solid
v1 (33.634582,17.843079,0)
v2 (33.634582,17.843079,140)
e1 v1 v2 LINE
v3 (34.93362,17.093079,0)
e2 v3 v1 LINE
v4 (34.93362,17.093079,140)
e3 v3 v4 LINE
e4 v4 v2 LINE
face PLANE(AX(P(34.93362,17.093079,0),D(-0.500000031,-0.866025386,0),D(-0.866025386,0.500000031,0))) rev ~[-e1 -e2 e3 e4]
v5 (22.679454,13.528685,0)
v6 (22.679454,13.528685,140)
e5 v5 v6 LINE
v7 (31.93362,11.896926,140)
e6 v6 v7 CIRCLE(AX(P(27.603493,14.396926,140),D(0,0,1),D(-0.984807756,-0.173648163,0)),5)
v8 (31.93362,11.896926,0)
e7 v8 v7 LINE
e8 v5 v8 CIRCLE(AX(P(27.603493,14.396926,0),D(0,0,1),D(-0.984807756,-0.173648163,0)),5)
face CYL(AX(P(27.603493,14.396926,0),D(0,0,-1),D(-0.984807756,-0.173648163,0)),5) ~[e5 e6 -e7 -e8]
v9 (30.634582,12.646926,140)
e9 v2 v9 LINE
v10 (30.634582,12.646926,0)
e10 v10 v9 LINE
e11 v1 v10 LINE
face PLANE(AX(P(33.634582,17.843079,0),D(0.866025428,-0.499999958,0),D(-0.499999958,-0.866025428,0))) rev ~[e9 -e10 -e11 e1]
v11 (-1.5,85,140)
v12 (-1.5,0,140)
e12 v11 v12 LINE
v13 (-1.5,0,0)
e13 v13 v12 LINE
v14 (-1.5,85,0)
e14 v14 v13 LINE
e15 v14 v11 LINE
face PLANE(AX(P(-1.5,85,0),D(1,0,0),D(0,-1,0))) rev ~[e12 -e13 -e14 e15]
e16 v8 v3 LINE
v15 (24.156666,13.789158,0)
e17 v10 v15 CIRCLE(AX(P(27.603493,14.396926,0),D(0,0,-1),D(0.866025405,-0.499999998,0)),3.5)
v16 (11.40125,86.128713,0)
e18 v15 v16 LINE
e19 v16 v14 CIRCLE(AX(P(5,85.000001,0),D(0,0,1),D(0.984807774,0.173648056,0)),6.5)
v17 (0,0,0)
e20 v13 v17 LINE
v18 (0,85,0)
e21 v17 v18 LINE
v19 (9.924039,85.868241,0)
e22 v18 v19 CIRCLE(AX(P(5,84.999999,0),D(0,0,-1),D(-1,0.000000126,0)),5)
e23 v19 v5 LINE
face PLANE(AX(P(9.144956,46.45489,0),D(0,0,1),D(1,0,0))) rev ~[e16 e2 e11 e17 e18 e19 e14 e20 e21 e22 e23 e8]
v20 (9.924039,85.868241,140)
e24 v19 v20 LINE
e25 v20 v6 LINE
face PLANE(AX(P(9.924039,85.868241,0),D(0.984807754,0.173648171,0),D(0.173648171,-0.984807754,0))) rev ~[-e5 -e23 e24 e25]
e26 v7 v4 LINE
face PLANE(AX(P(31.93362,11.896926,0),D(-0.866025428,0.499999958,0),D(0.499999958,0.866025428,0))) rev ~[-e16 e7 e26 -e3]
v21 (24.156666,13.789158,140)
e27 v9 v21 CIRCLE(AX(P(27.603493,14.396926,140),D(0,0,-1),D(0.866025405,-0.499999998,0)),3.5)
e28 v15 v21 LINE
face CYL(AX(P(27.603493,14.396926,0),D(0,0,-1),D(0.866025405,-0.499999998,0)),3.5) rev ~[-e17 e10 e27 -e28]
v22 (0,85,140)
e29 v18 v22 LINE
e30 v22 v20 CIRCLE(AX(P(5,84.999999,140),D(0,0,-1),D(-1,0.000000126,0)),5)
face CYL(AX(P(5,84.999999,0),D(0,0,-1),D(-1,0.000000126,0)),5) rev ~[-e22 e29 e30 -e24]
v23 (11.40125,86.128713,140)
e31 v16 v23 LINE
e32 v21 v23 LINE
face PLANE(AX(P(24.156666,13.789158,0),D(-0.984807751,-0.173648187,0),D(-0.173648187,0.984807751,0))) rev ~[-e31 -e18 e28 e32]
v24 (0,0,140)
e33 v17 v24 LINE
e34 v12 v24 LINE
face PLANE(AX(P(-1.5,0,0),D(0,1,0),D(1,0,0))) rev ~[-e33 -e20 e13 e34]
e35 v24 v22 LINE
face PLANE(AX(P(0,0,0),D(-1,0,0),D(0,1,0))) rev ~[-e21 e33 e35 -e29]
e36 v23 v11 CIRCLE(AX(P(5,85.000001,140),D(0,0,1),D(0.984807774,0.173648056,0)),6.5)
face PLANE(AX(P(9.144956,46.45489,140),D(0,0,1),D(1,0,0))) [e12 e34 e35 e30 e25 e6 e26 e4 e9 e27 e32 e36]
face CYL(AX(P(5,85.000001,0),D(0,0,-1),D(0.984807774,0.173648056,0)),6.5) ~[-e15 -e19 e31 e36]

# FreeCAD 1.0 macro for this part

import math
import FreeCAD as App
import Part
import Sketcher
Q = App.Units.Quantity

doc = App.newDocument("Part")
body = doc.addObject("PartDesign::Body", "Body")

sketch1 = doc.addObject("Sketcher::SketchObject", "Sketch")
body.addObject(sketch1)
sketch1.AttachmentSupport = (doc.XY_Plane, [""])
sketch1.MapMode = "FlatFace"
sketch1.addGeometry([
    Part.LineSegment(App.Vector(-1.5, 0, 0), App.Vector(0, 0, 0)),
    Part.LineSegment(App.Vector(0, 0, 0), App.Vector(0, 85, 0)),
    Part.ArcOfCircle(Part.Circle(App.Vector(5, 85, 0), App.Vector(0, 0, 1), 5), math.radians(10), math.radians(180)),
    Part.LineSegment(App.Vector(9.9, 85.9, 0), App.Vector(22.7, 13.5, 0)),
    Part.ArcOfCircle(Part.Circle(App.Vector(27.6, 14.4, 0), App.Vector(0, 0, 1), 5), math.radians(-170), math.radians(-30)),
    Part.LineSegment(App.Vector(31.9, 11.9, 0), App.Vector(34.9, 17.1, 0)),
    Part.LineSegment(App.Vector(34.9, 17.1, 0), App.Vector(33.6, 17.8, 0)),
    Part.LineSegment(App.Vector(33.6, 17.8, 0), App.Vector(30.6, 12.6, 0)),
    Part.ArcOfCircle(Part.Circle(App.Vector(27.6, 14.4, 0), App.Vector(0, 0, 1), 3.5), math.radians(-170), math.radians(-30)),
    Part.LineSegment(App.Vector(24.2, 13.8, 0), App.Vector(11.4, 86.1, 0)),
    Part.ArcOfCircle(Part.Circle(App.Vector(5, 85, 0), App.Vector(0, 0, 1), 6.5), math.radians(10), math.radians(180)),
    Part.LineSegment(App.Vector(-1.5, 85, 0), App.Vector(-1.5, 0, 0)),
], False)
sketch1.addConstraint([
    Sketcher.Constraint("Coincident", 0, 2, 1, 1),
    Sketcher.Constraint("Tangent", 1, 2, 2, 2),
    Sketcher.Constraint("Tangent", 2, 1, 3, 1),
    Sketcher.Constraint("Tangent", 3, 2, 4, 1),
    Sketcher.Constraint("Tangent", 4, 2, 5, 1),
    Sketcher.Constraint("Coincident", 5, 2, 6, 1),
    Sketcher.Constraint("Coincident", 6, 2, 7, 1),
    Sketcher.Constraint("Tangent", 7, 2, 8, 2),
    Sketcher.Constraint("Tangent", 8, 1, 9, 1),
    Sketcher.Constraint("Tangent", 9, 2, 10, 1),
    Sketcher.Constraint("Tangent", 10, 2, 11, 1),
    Sketcher.Constraint("Coincident", 11, 2, 0, 1),
    Sketcher.Constraint("Horizontal", 0),
    Sketcher.Constraint("Vertical", 1),
    Sketcher.Constraint("Vertical", 11),
    Sketcher.Constraint("Coincident", 0, 2, -1, 1),
    Sketcher.Constraint("Coincident", 8, 3, 4, 3),
    Sketcher.Constraint("Coincident", 10, 3, 2, 3),
    Sketcher.Constraint("Equal", 2, 4),
    Sketcher.Constraint("Perpendicular", 5, 6),
    Sketcher.Constraint("Perpendicular", 6, 7),
    Sketcher.Constraint("Parallel", 3, 9),
    Sketcher.Constraint("Radius", 2, 5.0),
    Sketcher.Constraint("Radius", 8, 3.5),
    Sketcher.Constraint("DistanceY", 1, 1, 1, 2, 85.0),
    Sketcher.Constraint("Angle", 3, Q("-80 deg")),
    Sketcher.Constraint("Angle", 5, Q("60.000003 deg")),
    Sketcher.Constraint("Distance", 5, 6.0),
    Sketcher.Constraint("Distance", 3, 73.45551),
])
pad1 = doc.addObject("PartDesign::Pad", "Pad")
body.addObject(pad1)
pad1.Profile = sketch1
pad1.Length = 140

doc.recompute()
